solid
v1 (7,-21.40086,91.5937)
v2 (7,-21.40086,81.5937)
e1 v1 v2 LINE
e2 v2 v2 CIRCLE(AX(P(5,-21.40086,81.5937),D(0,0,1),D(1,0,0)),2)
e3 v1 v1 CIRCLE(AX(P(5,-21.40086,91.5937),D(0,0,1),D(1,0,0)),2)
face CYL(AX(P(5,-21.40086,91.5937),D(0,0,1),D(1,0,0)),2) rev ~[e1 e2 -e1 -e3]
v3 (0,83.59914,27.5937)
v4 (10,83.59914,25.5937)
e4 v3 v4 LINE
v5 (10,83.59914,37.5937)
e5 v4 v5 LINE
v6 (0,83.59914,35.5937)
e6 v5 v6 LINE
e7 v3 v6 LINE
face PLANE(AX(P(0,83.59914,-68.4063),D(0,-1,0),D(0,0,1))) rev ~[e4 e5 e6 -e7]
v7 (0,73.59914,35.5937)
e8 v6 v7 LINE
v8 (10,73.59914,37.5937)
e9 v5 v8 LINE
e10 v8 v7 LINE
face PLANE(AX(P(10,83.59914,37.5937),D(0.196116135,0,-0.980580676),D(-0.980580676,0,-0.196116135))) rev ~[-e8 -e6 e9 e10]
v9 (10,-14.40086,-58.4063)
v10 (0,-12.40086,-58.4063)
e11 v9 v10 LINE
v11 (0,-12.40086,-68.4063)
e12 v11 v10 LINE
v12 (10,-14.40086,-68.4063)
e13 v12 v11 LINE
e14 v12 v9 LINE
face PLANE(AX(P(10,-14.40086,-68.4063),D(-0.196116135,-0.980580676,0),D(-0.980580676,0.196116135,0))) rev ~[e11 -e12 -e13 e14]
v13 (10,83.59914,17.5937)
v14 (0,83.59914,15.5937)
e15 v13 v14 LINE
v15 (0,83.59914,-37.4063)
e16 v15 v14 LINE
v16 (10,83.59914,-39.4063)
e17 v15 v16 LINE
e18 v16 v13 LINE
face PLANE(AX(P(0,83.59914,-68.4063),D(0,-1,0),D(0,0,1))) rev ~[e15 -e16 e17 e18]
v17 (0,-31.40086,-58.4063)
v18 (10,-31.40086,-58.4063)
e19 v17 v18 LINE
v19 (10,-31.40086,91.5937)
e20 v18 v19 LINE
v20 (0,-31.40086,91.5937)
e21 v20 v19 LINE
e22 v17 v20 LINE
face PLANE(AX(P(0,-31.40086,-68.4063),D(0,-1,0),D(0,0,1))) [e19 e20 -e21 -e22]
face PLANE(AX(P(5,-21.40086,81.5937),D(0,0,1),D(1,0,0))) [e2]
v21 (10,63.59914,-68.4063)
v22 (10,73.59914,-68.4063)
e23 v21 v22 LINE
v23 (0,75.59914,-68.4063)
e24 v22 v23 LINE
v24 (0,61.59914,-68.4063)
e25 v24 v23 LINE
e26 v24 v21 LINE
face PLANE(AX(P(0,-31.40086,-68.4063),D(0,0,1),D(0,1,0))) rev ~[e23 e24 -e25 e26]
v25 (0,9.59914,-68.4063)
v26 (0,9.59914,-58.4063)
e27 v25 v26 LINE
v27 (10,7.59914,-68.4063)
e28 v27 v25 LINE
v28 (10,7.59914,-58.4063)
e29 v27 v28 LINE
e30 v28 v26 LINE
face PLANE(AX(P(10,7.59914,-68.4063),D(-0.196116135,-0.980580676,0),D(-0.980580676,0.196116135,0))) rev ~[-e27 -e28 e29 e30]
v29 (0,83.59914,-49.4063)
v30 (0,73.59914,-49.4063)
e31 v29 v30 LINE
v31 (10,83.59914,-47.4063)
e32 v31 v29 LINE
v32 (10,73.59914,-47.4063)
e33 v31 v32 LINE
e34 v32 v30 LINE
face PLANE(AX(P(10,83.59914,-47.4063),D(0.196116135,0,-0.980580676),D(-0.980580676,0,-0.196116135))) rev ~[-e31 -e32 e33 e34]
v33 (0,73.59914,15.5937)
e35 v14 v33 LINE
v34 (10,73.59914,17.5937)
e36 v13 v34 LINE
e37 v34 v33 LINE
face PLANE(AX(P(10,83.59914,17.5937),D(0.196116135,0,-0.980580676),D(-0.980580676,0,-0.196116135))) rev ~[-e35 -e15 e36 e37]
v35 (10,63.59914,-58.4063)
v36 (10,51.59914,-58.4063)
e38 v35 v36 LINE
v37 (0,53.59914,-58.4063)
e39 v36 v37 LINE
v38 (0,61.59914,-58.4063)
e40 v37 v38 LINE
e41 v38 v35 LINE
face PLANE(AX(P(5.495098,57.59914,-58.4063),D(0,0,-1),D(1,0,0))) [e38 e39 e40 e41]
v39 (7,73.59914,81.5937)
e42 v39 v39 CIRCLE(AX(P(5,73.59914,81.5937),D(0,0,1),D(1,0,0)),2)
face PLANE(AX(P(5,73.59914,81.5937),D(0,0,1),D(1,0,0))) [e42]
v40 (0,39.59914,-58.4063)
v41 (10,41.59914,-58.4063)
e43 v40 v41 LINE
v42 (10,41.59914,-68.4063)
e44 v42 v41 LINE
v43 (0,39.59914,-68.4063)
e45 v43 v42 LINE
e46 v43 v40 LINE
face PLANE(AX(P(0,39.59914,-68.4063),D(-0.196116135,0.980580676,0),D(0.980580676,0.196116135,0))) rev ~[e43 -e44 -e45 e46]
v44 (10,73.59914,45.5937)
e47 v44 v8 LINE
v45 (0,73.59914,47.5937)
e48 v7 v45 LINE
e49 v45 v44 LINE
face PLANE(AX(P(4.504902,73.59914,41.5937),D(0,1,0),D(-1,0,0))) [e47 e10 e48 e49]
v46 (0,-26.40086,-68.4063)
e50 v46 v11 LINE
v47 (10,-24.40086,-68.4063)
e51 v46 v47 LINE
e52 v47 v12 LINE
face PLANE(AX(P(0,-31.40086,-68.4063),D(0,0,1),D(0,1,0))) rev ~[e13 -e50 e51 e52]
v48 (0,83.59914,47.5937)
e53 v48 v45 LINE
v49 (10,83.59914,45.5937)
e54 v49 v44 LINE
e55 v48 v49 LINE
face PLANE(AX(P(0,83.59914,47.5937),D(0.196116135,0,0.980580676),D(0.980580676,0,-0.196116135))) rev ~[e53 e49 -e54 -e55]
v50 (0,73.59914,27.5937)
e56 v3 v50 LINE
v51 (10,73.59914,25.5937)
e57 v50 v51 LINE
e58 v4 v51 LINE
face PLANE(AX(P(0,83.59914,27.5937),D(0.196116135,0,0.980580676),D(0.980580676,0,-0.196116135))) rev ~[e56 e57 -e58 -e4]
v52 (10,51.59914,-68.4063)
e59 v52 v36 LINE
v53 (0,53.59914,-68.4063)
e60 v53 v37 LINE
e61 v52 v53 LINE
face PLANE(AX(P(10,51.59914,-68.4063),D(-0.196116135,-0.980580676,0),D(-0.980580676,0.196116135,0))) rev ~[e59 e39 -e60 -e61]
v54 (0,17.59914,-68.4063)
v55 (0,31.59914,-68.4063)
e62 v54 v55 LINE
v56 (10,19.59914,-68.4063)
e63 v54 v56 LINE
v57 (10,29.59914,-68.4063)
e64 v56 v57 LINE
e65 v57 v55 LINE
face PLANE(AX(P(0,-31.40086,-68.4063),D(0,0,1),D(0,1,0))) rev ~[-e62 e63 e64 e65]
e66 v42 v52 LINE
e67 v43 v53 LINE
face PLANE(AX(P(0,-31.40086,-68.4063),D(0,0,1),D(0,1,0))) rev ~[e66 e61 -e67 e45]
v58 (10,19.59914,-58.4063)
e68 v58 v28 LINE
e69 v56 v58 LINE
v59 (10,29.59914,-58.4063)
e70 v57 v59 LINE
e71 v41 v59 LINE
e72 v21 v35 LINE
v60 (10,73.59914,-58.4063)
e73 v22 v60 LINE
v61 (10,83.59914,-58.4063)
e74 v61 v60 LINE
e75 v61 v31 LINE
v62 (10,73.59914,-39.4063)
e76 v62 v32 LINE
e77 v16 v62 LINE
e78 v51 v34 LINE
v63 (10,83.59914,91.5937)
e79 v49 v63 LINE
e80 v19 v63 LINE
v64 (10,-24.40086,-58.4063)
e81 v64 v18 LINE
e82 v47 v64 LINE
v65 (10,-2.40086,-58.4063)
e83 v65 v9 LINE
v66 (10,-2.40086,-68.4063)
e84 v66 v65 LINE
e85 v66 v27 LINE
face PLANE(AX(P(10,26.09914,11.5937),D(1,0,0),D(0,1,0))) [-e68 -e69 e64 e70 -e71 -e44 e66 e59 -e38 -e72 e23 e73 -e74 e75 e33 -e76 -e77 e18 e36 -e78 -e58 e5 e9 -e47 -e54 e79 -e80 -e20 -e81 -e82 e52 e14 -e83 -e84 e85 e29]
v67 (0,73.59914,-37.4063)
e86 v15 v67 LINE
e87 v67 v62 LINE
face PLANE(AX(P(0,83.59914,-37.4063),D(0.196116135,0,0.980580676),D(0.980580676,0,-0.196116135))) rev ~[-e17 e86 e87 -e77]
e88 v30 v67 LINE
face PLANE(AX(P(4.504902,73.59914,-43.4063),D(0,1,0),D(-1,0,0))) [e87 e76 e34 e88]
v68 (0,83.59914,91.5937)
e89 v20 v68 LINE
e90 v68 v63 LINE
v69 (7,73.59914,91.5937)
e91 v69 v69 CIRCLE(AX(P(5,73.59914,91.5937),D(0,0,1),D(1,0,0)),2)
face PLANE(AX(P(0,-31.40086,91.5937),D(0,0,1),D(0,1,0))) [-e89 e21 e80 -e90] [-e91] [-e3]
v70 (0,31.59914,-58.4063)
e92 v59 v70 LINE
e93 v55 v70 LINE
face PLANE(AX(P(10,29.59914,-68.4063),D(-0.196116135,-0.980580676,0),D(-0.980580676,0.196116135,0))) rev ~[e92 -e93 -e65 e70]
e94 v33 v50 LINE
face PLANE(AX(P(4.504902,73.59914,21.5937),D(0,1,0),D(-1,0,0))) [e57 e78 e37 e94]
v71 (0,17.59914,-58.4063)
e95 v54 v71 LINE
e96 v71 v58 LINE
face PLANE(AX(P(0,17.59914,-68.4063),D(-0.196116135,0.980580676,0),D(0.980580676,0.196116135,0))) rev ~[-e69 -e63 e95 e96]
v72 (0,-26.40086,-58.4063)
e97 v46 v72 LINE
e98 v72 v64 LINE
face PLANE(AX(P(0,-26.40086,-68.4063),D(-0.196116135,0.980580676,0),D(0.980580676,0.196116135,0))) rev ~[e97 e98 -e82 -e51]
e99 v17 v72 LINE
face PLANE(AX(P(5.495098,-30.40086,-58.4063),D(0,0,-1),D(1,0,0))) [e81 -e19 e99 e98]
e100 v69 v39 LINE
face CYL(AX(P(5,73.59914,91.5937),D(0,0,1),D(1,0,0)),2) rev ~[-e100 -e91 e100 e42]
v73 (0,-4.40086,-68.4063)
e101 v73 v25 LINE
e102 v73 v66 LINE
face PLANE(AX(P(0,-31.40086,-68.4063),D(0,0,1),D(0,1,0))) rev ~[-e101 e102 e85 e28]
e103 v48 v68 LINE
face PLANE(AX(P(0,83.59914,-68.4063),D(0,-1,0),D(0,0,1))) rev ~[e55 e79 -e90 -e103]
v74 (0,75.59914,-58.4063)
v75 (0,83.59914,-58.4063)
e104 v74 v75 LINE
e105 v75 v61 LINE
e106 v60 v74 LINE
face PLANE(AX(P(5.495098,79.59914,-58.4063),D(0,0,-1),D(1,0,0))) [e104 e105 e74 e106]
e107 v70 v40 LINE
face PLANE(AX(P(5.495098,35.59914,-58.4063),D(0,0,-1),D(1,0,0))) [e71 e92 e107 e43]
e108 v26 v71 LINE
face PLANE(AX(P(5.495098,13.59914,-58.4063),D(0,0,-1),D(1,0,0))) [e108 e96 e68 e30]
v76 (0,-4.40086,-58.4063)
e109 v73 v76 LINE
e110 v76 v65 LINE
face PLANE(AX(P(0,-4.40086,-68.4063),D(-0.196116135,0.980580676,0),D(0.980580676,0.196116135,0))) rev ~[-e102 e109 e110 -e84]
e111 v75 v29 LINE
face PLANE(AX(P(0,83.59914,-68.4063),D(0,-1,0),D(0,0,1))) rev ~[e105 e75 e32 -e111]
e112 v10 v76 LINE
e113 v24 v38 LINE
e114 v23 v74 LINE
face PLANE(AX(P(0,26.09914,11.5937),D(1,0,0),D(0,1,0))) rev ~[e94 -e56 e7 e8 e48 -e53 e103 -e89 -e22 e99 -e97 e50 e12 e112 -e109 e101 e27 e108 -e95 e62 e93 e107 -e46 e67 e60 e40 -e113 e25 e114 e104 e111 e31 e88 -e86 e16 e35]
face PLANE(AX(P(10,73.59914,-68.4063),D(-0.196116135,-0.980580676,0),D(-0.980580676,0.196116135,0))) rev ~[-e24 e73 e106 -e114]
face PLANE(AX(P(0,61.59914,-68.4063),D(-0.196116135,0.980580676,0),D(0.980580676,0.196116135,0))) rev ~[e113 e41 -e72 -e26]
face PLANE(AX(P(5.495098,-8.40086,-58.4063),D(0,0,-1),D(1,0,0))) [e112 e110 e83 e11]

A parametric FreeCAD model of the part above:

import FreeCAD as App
import Part
import Sketcher
Q = App.Units.Quantity

doc = App.newDocument("Part")
body = doc.addObject("PartDesign::Body", "Body")

# Sketch on YZ plane
sketch1 = body.newObject("Sketcher::SketchObject", "Sketch")
sketch1.AttachmentSupport = (doc.getObject("YZ_Plane"), [""])
sketch1.MapMode = "FlatFace"
sketch1.addGeometry(Part.LineSegment(App.Vector(-31.40086, 91.5937, 0), App.Vector(-31.40086, -68.4063, 0)), False)
sketch1.addGeometry(Part.LineSegment(App.Vector(-31.40086, -68.4063, 0), App.Vector(83.59914, -68.4063, 0)), False)
sketch1.addGeometry(Part.LineSegment(App.Vector(83.59914, -68.4063, 0), App.Vector(83.59914, 91.5937, 0)), False)
sketch1.addGeometry(Part.LineSegment(App.Vector(83.59914, 91.5937, 0), App.Vector(-31.40086, 91.5937, 0)), False)
sketch1.addConstraint(Sketcher.Constraint("Coincident", 0, 2, 1, 1))
sketch1.addConstraint(Sketcher.Constraint("Coincident", 1, 2, 2, 1))
sketch1.addConstraint(Sketcher.Constraint("Coincident", 2, 2, 3, 1))
sketch1.addConstraint(Sketcher.Constraint("Coincident", 3, 2, 0, 1))
sketch1.addConstraint(Sketcher.Constraint("Vertical", 0))
sketch1.addConstraint(Sketcher.Constraint("Horizontal", 1))
sketch1.addConstraint(Sketcher.Constraint("Vertical", 2))
sketch1.addConstraint(Sketcher.Constraint("Horizontal", 3))
sketch1.addConstraint(Sketcher.Constraint("DistanceX", 1, 1, 1, 2, Q("115 mm")))
sketch1.addConstraint(Sketcher.Constraint("DistanceY", 0, 2, 0, 1, Q("160 mm")))
sketch1.addConstraint(Sketcher.Constraint("DistanceY", 0, 2, -1, 1, Q("68.4063 mm")))
sketch1.addConstraint(Sketcher.Constraint("DistanceX", 0, 2, -1, 1, Q("31.40086 mm")))
pad1 = body.newObject("PartDesign::Pad", "Pad")
pad1.Profile = sketch1
pad1.Length = 10

# Sketch on XZ plane
sketch2 = body.newObject("Sketcher::SketchObject", "Sketch001")
sketch2.AttachmentSupport = (doc.getObject("XZ_Plane"), [""])
sketch2.MapMode = "FlatFace"
sketch2.AttachmentOffset = App.Placement(App.Vector(0, 0, -83.59914), App.Rotation())
sketch2.addGeometry(Part.LineSegment(App.Vector(0, 27.5937, 0), App.Vector(10, 25.5937, 0)), False)
sketch2.addGeometry(Part.LineSegment(App.Vector(10, 25.5937, 0), App.Vector(10, 17.5937, 0)), False)
sketch2.addGeometry(Part.LineSegment(App.Vector(10, 17.5937, 0), App.Vector(0, 15.5937, 0)), False)
sketch2.addGeometry(Part.LineSegment(App.Vector(0, 15.5937, 0), App.Vector(0, 27.5937, 0)), False)
sketch2.addGeometry(Part.LineSegment(App.Vector(0, 47.5937, 0), App.Vector(10, 45.5937, 0)), False)
sketch2.addGeometry(Part.LineSegment(App.Vector(10, 45.5937, 0), App.Vector(10, 37.5937, 0)), False)
sketch2.addGeometry(Part.LineSegment(App.Vector(10, 37.5937, 0), App.Vector(0, 35.5937, 0)), False)
sketch2.addGeometry(Part.LineSegment(App.Vector(0, 35.5937, 0), App.Vector(0, 47.5937, 0)), False)
sketch2.addGeometry(Part.LineSegment(App.Vector(0, -37.4063, 0), App.Vector(10, -39.4063, 0)), False)
sketch2.addGeometry(Part.LineSegment(App.Vector(10, -39.4063, 0), App.Vector(10, -47.4063, 0)), False)
sketch2.addGeometry(Part.LineSegment(App.Vector(10, -47.4063, 0), App.Vector(0, -49.4063, 0)), False)
sketch2.addGeometry(Part.LineSegment(App.Vector(0, -49.4063, 0), App.Vector(0, -37.4063, 0)), False)
sketch2.addConstraint(Sketcher.Constraint("Coincident", 0, 2, 1, 1))
sketch2.addConstraint(Sketcher.Constraint("Coincident", 1, 2, 2, 1))
sketch2.addConstraint(Sketcher.Constraint("Coincident", 2, 2, 3, 1))
sketch2.addConstraint(Sketcher.Constraint("Coincident", 3, 2, 0, 1))
sketch2.addConstraint(Sketcher.Constraint("Coincident", 4, 2, 5, 1))
sketch2.addConstraint(Sketcher.Constraint("Coincident", 5, 2, 6, 1))
sketch2.addConstraint(Sketcher.Constraint("Coincident", 6, 2, 7, 1))
sketch2.addConstraint(Sketcher.Constraint("Coincident", 7, 2, 4, 1))
sketch2.addConstraint(Sketcher.Constraint("Coincident", 8, 2, 9, 1))
sketch2.addConstraint(Sketcher.Constraint("Coincident", 9, 2, 10, 1))
sketch2.addConstraint(Sketcher.Constraint("Coincident", 10, 2, 11, 1))
sketch2.addConstraint(Sketcher.Constraint("Coincident", 11, 2, 8, 1))
sketch2.addConstraint(Sketcher.Constraint("Vertical", 1))
sketch2.addConstraint(Sketcher.Constraint("Vertical", 3))
sketch2.addConstraint(Sketcher.Constraint("Vertical", 5))
sketch2.addConstraint(Sketcher.Constraint("Vertical", 7))
sketch2.addConstraint(Sketcher.Constraint("Vertical", 9))
sketch2.addConstraint(Sketcher.Constraint("Vertical", 11))
sketch2.addConstraint(Sketcher.Constraint("PointOnObject", 2, 2, -2))
sketch2.addConstraint(Sketcher.Constraint("PointOnObject", 6, 2, -2))
sketch2.addConstraint(Sketcher.Constraint("PointOnObject", 10, 2, -2))
sketch2.addConstraint(Sketcher.Constraint("Parallel", 0, 4))
sketch2.addConstraint(Sketcher.Constraint("Parallel", 2, 6))
sketch2.addConstraint(Sketcher.Constraint("Parallel", 4, 8))
sketch2.addConstraint(Sketcher.Constraint("Parallel", 6, 10))
sketch2.addConstraint(Sketcher.Constraint("Vertical", 1, 2, 4, 2))
sketch2.addConstraint(Sketcher.Constraint("Vertical", 5, 2, 8, 2))
sketch2.addConstraint(Sketcher.Constraint("Equal", 1, 5))
sketch2.addConstraint(Sketcher.Constraint("Equal", 5, 9))
sketch2.addConstraint(Sketcher.Constraint("Equal", 0, 2))
sketch2.addConstraint(Sketcher.Constraint("DistanceY", 1, 2, 1, 1, Q("8 mm")))
sketch2.addConstraint(Sketcher.Constraint("DistanceY", 3, 1, 3, 2, Q("12 mm")))
sketch2.addConstraint(Sketcher.Constraint("DistanceX", -1, 1, 0, 2, Q("10 mm")))
sketch2.addConstraint(Sketcher.Constraint("DistanceY", 0, 2, 4, 2, Q("20 mm")))
sketch2.addConstraint(Sketcher.Constraint("DistanceY", 8, 2, 2, 2, Q("55 mm")))
sketch2.addConstraint(Sketcher.Constraint("DistanceY", -1, 1, 0, 2, Q("25.5937 mm")))
pocket1 = body.newObject("PartDesign::Pocket", "Pocket")
pocket1.Profile = sketch2
pocket1.Length = 10
pocket1.Reversed = True

# Sketch on XY plane
sketch3 = body.newObject("Sketcher::SketchObject", "Sketch002")
sketch3.AttachmentSupport = (doc.getObject("XY_Plane"), [""])
sketch3.MapMode = "FlatFace"
sketch3.AttachmentOffset = App.Placement(App.Vector(0, 0, -68.4063), App.Rotation())
sketch3.addGeometry(Part.LineSegment(App.Vector(0, 83.59914, 0), App.Vector(10, 85.59914, 0)), False)
sketch3.addGeometry(Part.LineSegment(App.Vector(10, 85.59914, 0), App.Vector(10, 73.59914, 0)), False)
sketch3.addGeometry(Part.LineSegment(App.Vector(10, 73.59914, 0), App.Vector(0, 75.59914, 0)), False)
sketch3.addGeometry(Part.LineSegment(App.Vector(0, 75.59914, 0), App.Vector(0, 83.59914, 0)), False)
sketch3.addGeometry(Part.LineSegment(App.Vector(10, 51.59914, 0), App.Vector(0, 53.59914, 0)), False)
sketch3.addGeometry(Part.LineSegment(App.Vector(0, 53.59914, 0), App.Vector(0, 61.59914, 0)), False)
sketch3.addGeometry(Part.LineSegment(App.Vector(0, 61.59914, 0), App.Vector(10, 63.59914, 0)), False)
sketch3.addGeometry(Part.LineSegment(App.Vector(10, 63.59914, 0), App.Vector(10, 51.59914, 0)), False)
sketch3.addGeometry(Part.LineSegment(App.Vector(10, 29.59914, 0), App.Vector(0, 31.59914, 0)), False)
sketch3.addGeometry(Part.LineSegment(App.Vector(0, 31.59914, 0), App.Vector(0, 39.59914, 0)), False)
sketch3.addGeometry(Part.LineSegment(App.Vector(0, 39.59914, 0), App.Vector(10, 41.59914, 0)), False)
sketch3.addGeometry(Part.LineSegment(App.Vector(10, 41.59914, 0), App.Vector(10, 29.59914, 0)), False)
sketch3.addGeometry(Part.LineSegment(App.Vector(10, 7.59914, 0), App.Vector(0, 9.59914, 0)), False)
sketch3.addGeometry(Part.LineSegment(App.Vector(0, 9.59914, 0), App.Vector(0, 17.59914, 0)), False)
sketch3.addGeometry(Part.LineSegment(App.Vector(0, 17.59914, 0), App.Vector(10, 19.59914, 0)), False)
sketch3.addGeometry(Part.LineSegment(App.Vector(10, 19.59914, 0), App.Vector(10, 7.59914, 0)), False)
sketch3.addGeometry(Part.LineSegment(App.Vector(10, -14.40086, 0), App.Vector(0, -12.40086, 0)), False)
sketch3.addGeometry(Part.LineSegment(App.Vector(0, -12.40086, 0), App.Vector(0, -4.40086, 0)), False)
sketch3.addGeometry(Part.LineSegment(App.Vector(0, -4.40086, 0), App.Vector(10, -2.40086, 0)), False)
sketch3.addGeometry(Part.LineSegment(App.Vector(10, -2.40086, 0), App.Vector(10, -14.40086, 0)), False)
sketch3.addGeometry(Part.LineSegment(App.Vector(10, -36.40086, 0), App.Vector(0, -34.40086, 0)), False)
sketch3.addGeometry(Part.LineSegment(App.Vector(0, -34.40086, 0), App.Vector(0, -26.40086, 0)), False)
sketch3.addGeometry(Part.LineSegment(App.Vector(0, -26.40086, 0), App.Vector(10, -24.40086, 0)), False)
sketch3.addGeometry(Part.LineSegment(App.Vector(10, -24.40086, 0), App.Vector(10, -36.40086, 0)), False)
sketch3.addConstraint(Sketcher.Constraint("Coincident", 0, 2, 1, 1))
sketch3.addConstraint(Sketcher.Constraint("Coincident", 1, 2, 2, 1))
sketch3.addConstraint(Sketcher.Constraint("Coincident", 2, 2, 3, 1))
sketch3.addConstraint(Sketcher.Constraint("Coincident", 3, 2, 0, 1))
sketch3.addConstraint(Sketcher.Constraint("Coincident", 4, 2, 5, 1))
sketch3.addConstraint(Sketcher.Constraint("Coincident", 5, 2, 6, 1))
sketch3.addConstraint(Sketcher.Constraint("Coincident", 6, 2, 7, 1))
sketch3.addConstraint(Sketcher.Constraint("Coincident", 7, 2, 4, 1))
sketch3.addConstraint(Sketcher.Constraint("Coincident", 8, 2, 9, 1))
sketch3.addConstraint(Sketcher.Constraint("Coincident", 9, 2, 10, 1))
sketch3.addConstraint(Sketcher.Constraint("Coincident", 10, 2, 11, 1))
sketch3.addConstraint(Sketcher.Constraint("Coincident", 11, 2, 8, 1))
sketch3.addConstraint(Sketcher.Constraint("Coincident", 12, 2, 13, 1))
sketch3.addConstraint(Sketcher.Constraint("Coincident", 13, 2, 14, 1))
sketch3.addConstraint(Sketcher.Constraint("Coincident", 14, 2, 15, 1))
sketch3.addConstraint(Sketcher.Constraint("Coincident", 15, 2, 12, 1))
sketch3.addConstraint(Sketcher.Constraint("Coincident", 16, 2, 17, 1))
sketch3.addConstraint(Sketcher.Constraint("Coincident", 17, 2, 18, 1))
sketch3.addConstraint(Sketcher.Constraint("Coincident", 18, 2, 19, 1))
sketch3.addConstraint(Sketcher.Constraint("Coincident", 19, 2, 16, 1))
sketch3.addConstraint(Sketcher.Constraint("Coincident", 20, 2, 21, 1))
sketch3.addConstraint(Sketcher.Constraint("Coincident", 21, 2, 22, 1))
sketch3.addConstraint(Sketcher.Constraint("Coincident", 22, 2, 23, 1))
sketch3.addConstraint(Sketcher.Constraint("Coincident", 23, 2, 20, 1))
sketch3.addConstraint(Sketcher.Constraint("Vertical", 1))
sketch3.addConstraint(Sketcher.Constraint("Vertical", 3))
sketch3.addConstraint(Sketcher.Constraint("Vertical", 5))
sketch3.addConstraint(Sketcher.Constraint("Vertical", 7))
sketch3.addConstraint(Sketcher.Constraint("Vertical", 9))
sketch3.addConstraint(Sketcher.Constraint("Vertical", 11))
sketch3.addConstraint(Sketcher.Constraint("Vertical", 13))
sketch3.addConstraint(Sketcher.Constraint("Vertical", 15))
sketch3.addConstraint(Sketcher.Constraint("Vertical", 17))
sketch3.addConstraint(Sketcher.Constraint("Vertical", 19))
sketch3.addConstraint(Sketcher.Constraint("Vertical", 21))
sketch3.addConstraint(Sketcher.Constraint("Vertical", 23))
sketch3.addConstraint(Sketcher.Constraint("PointOnObject", 2, 2, -2))
sketch3.addConstraint(Sketcher.Constraint("PointOnObject", 4, 2, -2))
sketch3.addConstraint(Sketcher.Constraint("PointOnObject", 8, 2, -2))
sketch3.addConstraint(Sketcher.Constraint("PointOnObject", 12, 2, -2))
sketch3.addConstraint(Sketcher.Constraint("PointOnObject", 16, 2, -2))
sketch3.addConstraint(Sketcher.Constraint("PointOnObject", 20, 2, -2))
sketch3.addConstraint(Sketcher.Constraint("Parallel", 2, 4))
sketch3.addConstraint(Sketcher.Constraint("Parallel", 0, 6))
sketch3.addConstraint(Sketcher.Constraint("Parallel", 4, 8))
sketch3.addConstraint(Sketcher.Constraint("Parallel", 6, 10))
sketch3.addConstraint(Sketcher.Constraint("Parallel", 8, 12))
sketch3.addConstraint(Sketcher.Constraint("Parallel", 10, 14))
sketch3.addConstraint(Sketcher.Constraint("Parallel", 12, 16))
sketch3.addConstraint(Sketcher.Constraint("Parallel", 14, 18))
sketch3.addConstraint(Sketcher.Constraint("Parallel", 16, 20))
sketch3.addConstraint(Sketcher.Constraint("Parallel", 18, 22))
sketch3.addConstraint(Sketcher.Constraint("Vertical", 1, 2, 6, 2))
sketch3.addConstraint(Sketcher.Constraint("Vertical", 7, 2, 10, 2))
sketch3.addConstraint(Sketcher.Constraint("Vertical", 11, 2, 14, 2))
sketch3.addConstraint(Sketcher.Constraint("Vertical", 15, 2, 18, 2))
sketch3.addConstraint(Sketcher.Constraint("Vertical", 19, 2, 22, 2))
sketch3.addConstraint(Sketcher.Constraint("Equal", 3, 5))
sketch3.addConstraint(Sketcher.Constraint("Equal", 5, 9))
sketch3.addConstraint(Sketcher.Constraint("Equal", 9, 13))
sketch3.addConstraint(Sketcher.Constraint("Equal", 13, 17))
sketch3.addConstraint(Sketcher.Constraint("Equal", 17, 21))
sketch3.addConstraint(Sketcher.Constraint("Equal", 0, 2))
sketch3.addConstraint(Sketcher.Constraint("DistanceY", 1, 2, 1, 1, Q("12 mm")))
sketch3.addConstraint(Sketcher.Constraint("DistanceY", 3, 1, 3, 2, Q("8 mm")))
sketch3.addConstraint(Sketcher.Constraint("DistanceX", -1, 1, 0, 2, Q("10 mm")))
sketch3.addConstraint(Sketcher.Constraint("DistanceY", 4, 2, 2, 2, Q("22 mm")))
sketch3.addConstraint(Sketcher.Constraint("DistanceY", 8, 2, 4, 2, Q("22 mm")))
sketch3.addConstraint(Sketcher.Constraint("DistanceY", 12, 2, 8, 2, Q("22 mm")))
sketch3.addConstraint(Sketcher.Constraint("DistanceY", 16, 2, 12, 2, Q("22 mm")))
sketch3.addConstraint(Sketcher.Constraint("DistanceY", 20, 2, 16, 2, Q("22 mm")))
sketch3.addConstraint(Sketcher.Constraint("DistanceY", -1, 1, 0, 2, Q("85.59914 mm")))
pocket2 = body.newObject("PartDesign::Pocket", "Pocket001")
pocket2.Profile = sketch3
pocket2.Length = 10
pocket2.Reversed = True

# Sketch on XY plane
sketch4 = body.newObject("Sketcher::SketchObject", "Sketch003")
sketch4.AttachmentSupport = (doc.getObject("XY_Plane"), [""])
sketch4.MapMode = "FlatFace"
sketch4.AttachmentOffset = App.Placement(App.Vector(0, 0, 91.5937), App.Rotation())
sketch4.addGeometry(Part.Circle(App.Vector(5, 73.59914, 0), App.Vector(0, 0, 1), 2), False)
sketch4.addGeometry(Part.Circle(App.Vector(5, -21.40086, 0), App.Vector(0, 0, 1), 2), False)
sketch4.addConstraint(Sketcher.Constraint("Equal", 0, 1))
sketch4.addConstraint(Sketcher.Constraint("Vertical", 0, 3, 1, 3))
sketch4.addConstraint(Sketcher.Constraint("Diameter", 0, Q("4 mm")))
sketch4.addConstraint(Sketcher.Constraint("DistanceX", -1, 1, 0, 3, Q("5 mm")))
sketch4.addConstraint(Sketcher.Constraint("DistanceY", 1, 3, 0, 3, Q("95 mm")))
sketch4.addConstraint(Sketcher.Constraint("DistanceY", -1, 1, 0, 3, Q("73.59914 mm")))
pocket3 = body.newObject("PartDesign::Pocket", "Pocket002")
pocket3.Profile = sketch4
pocket3.Length = 10

doc.recompute()
